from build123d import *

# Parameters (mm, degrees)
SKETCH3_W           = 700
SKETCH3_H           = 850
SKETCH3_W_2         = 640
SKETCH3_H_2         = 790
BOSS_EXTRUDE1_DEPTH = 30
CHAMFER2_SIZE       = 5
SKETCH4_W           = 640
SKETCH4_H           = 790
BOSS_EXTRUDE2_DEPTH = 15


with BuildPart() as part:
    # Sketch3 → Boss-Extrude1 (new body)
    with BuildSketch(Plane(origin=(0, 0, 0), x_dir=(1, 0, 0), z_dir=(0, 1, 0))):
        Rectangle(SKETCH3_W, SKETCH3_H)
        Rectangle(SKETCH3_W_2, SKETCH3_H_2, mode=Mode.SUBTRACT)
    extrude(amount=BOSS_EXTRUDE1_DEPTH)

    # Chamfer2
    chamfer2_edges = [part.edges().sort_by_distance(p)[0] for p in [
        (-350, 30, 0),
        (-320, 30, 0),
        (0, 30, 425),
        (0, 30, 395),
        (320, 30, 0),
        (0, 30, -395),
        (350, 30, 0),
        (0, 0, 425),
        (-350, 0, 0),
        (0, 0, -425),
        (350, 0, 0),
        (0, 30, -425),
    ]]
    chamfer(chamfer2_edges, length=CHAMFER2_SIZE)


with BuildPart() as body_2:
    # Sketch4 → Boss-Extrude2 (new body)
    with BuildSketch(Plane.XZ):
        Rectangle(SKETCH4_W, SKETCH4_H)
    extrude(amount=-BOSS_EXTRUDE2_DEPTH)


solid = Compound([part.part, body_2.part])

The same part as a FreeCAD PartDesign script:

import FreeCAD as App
import Part
import Sketcher
from FreeCAD import Vector


def edges_at(feature, points):
    """Names of the edges that pass closest to the given points."""
    edges = feature.Shape.Edges
    near = lambda p: min(range(len(edges)), key=lambda i: edges[i].distToShape(Part.Vertex(*p))[0])
    return sorted({f"Edge{near(p) + 1}" for p in points})

doc = App.newDocument("Part")
params = doc.addObject("Spreadsheet::Sheet", "Params")
for row, (alias, value) in enumerate([
    ("sketch1_width", "700 mm"),
    ("sketch1_width2", "640 mm"),
    ("sketch1_height", "850 mm"),
    ("sketch1_height2", "790 mm"),
    ("pad1_length", "30 mm"),
    ("chamfer_size", "5 mm"),
    ("sketch2_width", "640 mm"),
    ("sketch2_height", "790 mm"),
    ("pad2_length", "15 mm"),
], start=1):
    params.set(f"A{row}", alias)
    params.set(f"B{row}", "=" + value)
    params.setAlias(f"B{row}", alias)

body = doc.addObject("PartDesign::Body", "Body")

# Sketch on XZ plane
sketch1 = body.newObject("Sketcher::SketchObject", "Sketch")
sketch1.AttachmentSupport = (doc.getObject("XZ_Plane"), [""])
sketch1.MapMode = "FlatFace"
sketch1.addGeometry([
    Part.LineSegment(Vector(-350, -425, 0), Vector(-350, 425, 0)),  # 0
    Part.LineSegment(Vector(-350, 425, 0), Vector(350, 425, 0)),  # 1
    Part.LineSegment(Vector(350, 425, 0), Vector(350, -425, 0)),  # 2
    Part.LineSegment(Vector(350, -425, 0), Vector(-350, -425, 0)),  # 3
    Part.LineSegment(Vector(320, 395, 0), Vector(-320, 395, 0)),  # 4
    Part.LineSegment(Vector(-320, 395, 0), Vector(-320, -395, 0)),  # 5
    Part.LineSegment(Vector(-320, -395, 0), Vector(320, -395, 0)),  # 6
    Part.LineSegment(Vector(320, -395, 0), Vector(320, 395, 0)),  # 7
], False)
sketch1.addConstraint([
    Sketcher.Constraint("Coincident", 0, 2, 1, 1),
    Sketcher.Constraint("Coincident", 1, 2, 2, 1),
    Sketcher.Constraint("Coincident", 2, 2, 3, 1),
    Sketcher.Constraint("Coincident", 3, 2, 0, 1),
    Sketcher.Constraint("Coincident", 4, 2, 5, 1),
    Sketcher.Constraint("Coincident", 5, 2, 6, 1),
    Sketcher.Constraint("Coincident", 6, 2, 7, 1),
    Sketcher.Constraint("Coincident", 7, 2, 4, 1),
    Sketcher.Constraint("Vertical", 0),
    Sketcher.Constraint("Horizontal", 1),
    Sketcher.Constraint("Vertical", 2),
    Sketcher.Constraint("Horizontal", 3),
    Sketcher.Constraint("Horizontal", 4),
    Sketcher.Constraint("Vertical", 5),
    Sketcher.Constraint("Horizontal", 6),
    Sketcher.Constraint("Vertical", 7),
    Sketcher.Constraint("Symmetric", 0, 2, 2, 2, -1, 1),
    Sketcher.Constraint("Symmetric", 4, 2, 6, 2, -1, 1),
    Sketcher.Constraint("DistanceX", 1, 1, 1, 2, 700.0),
    Sketcher.Constraint("DistanceX", 4, 2, 4, 1, 640.0),
    Sketcher.Constraint("DistanceY", 0, 1, 0, 2, 850.0),
    Sketcher.Constraint("DistanceY", 5, 2, 5, 1, 790.0),
])
sketch1.setExpression("Constraints[18]", "Params.sketch1_width")
sketch1.setExpression("Constraints[19]", "Params.sketch1_width2")
sketch1.setExpression("Constraints[20]", "Params.sketch1_height")
sketch1.setExpression("Constraints[21]", "Params.sketch1_height2")
pad1 = body.newObject("PartDesign::Pad", "Pad")
pad1.Profile = sketch1
pad1.setExpression("Length", "Params.pad1_length")
pad1.Reversed = True
doc.recompute()

chamfer = body.newObject("PartDesign::Chamfer", "Chamfer")
chamfer.Base = (pad1, edges_at(pad1, [
    (-350, 30, 0),
    (-320, 30, 0),
    (0, 30, 425),
    (0, 30, 395),
    (320, 30, 0),
    (0, 30, -395),
    (350, 30, 0),
    (0, 0, 425),
    (-350, 0, 0),
    (0, 0, -425),
    (350, 0, 0),
    (0, 30, -425),
]))
chamfer.setExpression("Size", "Params.chamfer_size")
body2 = doc.addObject("PartDesign::Body", "Body001")

# Sketch on XZ plane
sketch2 = body2.newObject("Sketcher::SketchObject", "Sketch001")
sketch2.AttachmentSupport = (doc.getObject("XZ_Plane001"), [""])
sketch2.MapMode = "FlatFace"
sketch2.addGeometry([
    Part.LineSegment(Vector(-320, 395, 0), Vector(-320, -395, 0)),
    Part.LineSegment(Vector(-320, -395, 0), Vector(320, -395, 0)),
    Part.LineSegment(Vector(320, -395, 0), Vector(320, 395, 0)),
    Part.LineSegment(Vector(320, 395, 0), Vector(-320, 395, 0)),
], False)
sketch2.addConstraint([
    Sketcher.Constraint("Coincident", 0, 2, 1, 1),
    Sketcher.Constraint("Coincident", 1, 2, 2, 1),
    Sketcher.Constraint("Coincident", 2, 2, 3, 1),
    Sketcher.Constraint("Coincident", 3, 2, 0, 1),
    Sketcher.Constraint("Vertical", 0),
    Sketcher.Constraint("Horizontal", 1),
    Sketcher.Constraint("Vertical", 2),
    Sketcher.Constraint("Horizontal", 3),
    Sketcher.Constraint("Symmetric", 0, 2, 2, 2, -1, 1),
    Sketcher.Constraint("DistanceX", 1, 1, 1, 2, 640.0),
    Sketcher.Constraint("DistanceY", 0, 2, 0, 1, 790.0),
])
sketch2.setExpression("Constraints[9]", "Params.sketch2_width")
sketch2.setExpression("Constraints[10]", "Params.sketch2_height")
pad2 = body2.newObject("PartDesign::Pad", "Pad001")
pad2.Profile = sketch2
pad2.setExpression("Length", "Params.pad2_length")
pad2.Reversed = True

doc.recompute()
